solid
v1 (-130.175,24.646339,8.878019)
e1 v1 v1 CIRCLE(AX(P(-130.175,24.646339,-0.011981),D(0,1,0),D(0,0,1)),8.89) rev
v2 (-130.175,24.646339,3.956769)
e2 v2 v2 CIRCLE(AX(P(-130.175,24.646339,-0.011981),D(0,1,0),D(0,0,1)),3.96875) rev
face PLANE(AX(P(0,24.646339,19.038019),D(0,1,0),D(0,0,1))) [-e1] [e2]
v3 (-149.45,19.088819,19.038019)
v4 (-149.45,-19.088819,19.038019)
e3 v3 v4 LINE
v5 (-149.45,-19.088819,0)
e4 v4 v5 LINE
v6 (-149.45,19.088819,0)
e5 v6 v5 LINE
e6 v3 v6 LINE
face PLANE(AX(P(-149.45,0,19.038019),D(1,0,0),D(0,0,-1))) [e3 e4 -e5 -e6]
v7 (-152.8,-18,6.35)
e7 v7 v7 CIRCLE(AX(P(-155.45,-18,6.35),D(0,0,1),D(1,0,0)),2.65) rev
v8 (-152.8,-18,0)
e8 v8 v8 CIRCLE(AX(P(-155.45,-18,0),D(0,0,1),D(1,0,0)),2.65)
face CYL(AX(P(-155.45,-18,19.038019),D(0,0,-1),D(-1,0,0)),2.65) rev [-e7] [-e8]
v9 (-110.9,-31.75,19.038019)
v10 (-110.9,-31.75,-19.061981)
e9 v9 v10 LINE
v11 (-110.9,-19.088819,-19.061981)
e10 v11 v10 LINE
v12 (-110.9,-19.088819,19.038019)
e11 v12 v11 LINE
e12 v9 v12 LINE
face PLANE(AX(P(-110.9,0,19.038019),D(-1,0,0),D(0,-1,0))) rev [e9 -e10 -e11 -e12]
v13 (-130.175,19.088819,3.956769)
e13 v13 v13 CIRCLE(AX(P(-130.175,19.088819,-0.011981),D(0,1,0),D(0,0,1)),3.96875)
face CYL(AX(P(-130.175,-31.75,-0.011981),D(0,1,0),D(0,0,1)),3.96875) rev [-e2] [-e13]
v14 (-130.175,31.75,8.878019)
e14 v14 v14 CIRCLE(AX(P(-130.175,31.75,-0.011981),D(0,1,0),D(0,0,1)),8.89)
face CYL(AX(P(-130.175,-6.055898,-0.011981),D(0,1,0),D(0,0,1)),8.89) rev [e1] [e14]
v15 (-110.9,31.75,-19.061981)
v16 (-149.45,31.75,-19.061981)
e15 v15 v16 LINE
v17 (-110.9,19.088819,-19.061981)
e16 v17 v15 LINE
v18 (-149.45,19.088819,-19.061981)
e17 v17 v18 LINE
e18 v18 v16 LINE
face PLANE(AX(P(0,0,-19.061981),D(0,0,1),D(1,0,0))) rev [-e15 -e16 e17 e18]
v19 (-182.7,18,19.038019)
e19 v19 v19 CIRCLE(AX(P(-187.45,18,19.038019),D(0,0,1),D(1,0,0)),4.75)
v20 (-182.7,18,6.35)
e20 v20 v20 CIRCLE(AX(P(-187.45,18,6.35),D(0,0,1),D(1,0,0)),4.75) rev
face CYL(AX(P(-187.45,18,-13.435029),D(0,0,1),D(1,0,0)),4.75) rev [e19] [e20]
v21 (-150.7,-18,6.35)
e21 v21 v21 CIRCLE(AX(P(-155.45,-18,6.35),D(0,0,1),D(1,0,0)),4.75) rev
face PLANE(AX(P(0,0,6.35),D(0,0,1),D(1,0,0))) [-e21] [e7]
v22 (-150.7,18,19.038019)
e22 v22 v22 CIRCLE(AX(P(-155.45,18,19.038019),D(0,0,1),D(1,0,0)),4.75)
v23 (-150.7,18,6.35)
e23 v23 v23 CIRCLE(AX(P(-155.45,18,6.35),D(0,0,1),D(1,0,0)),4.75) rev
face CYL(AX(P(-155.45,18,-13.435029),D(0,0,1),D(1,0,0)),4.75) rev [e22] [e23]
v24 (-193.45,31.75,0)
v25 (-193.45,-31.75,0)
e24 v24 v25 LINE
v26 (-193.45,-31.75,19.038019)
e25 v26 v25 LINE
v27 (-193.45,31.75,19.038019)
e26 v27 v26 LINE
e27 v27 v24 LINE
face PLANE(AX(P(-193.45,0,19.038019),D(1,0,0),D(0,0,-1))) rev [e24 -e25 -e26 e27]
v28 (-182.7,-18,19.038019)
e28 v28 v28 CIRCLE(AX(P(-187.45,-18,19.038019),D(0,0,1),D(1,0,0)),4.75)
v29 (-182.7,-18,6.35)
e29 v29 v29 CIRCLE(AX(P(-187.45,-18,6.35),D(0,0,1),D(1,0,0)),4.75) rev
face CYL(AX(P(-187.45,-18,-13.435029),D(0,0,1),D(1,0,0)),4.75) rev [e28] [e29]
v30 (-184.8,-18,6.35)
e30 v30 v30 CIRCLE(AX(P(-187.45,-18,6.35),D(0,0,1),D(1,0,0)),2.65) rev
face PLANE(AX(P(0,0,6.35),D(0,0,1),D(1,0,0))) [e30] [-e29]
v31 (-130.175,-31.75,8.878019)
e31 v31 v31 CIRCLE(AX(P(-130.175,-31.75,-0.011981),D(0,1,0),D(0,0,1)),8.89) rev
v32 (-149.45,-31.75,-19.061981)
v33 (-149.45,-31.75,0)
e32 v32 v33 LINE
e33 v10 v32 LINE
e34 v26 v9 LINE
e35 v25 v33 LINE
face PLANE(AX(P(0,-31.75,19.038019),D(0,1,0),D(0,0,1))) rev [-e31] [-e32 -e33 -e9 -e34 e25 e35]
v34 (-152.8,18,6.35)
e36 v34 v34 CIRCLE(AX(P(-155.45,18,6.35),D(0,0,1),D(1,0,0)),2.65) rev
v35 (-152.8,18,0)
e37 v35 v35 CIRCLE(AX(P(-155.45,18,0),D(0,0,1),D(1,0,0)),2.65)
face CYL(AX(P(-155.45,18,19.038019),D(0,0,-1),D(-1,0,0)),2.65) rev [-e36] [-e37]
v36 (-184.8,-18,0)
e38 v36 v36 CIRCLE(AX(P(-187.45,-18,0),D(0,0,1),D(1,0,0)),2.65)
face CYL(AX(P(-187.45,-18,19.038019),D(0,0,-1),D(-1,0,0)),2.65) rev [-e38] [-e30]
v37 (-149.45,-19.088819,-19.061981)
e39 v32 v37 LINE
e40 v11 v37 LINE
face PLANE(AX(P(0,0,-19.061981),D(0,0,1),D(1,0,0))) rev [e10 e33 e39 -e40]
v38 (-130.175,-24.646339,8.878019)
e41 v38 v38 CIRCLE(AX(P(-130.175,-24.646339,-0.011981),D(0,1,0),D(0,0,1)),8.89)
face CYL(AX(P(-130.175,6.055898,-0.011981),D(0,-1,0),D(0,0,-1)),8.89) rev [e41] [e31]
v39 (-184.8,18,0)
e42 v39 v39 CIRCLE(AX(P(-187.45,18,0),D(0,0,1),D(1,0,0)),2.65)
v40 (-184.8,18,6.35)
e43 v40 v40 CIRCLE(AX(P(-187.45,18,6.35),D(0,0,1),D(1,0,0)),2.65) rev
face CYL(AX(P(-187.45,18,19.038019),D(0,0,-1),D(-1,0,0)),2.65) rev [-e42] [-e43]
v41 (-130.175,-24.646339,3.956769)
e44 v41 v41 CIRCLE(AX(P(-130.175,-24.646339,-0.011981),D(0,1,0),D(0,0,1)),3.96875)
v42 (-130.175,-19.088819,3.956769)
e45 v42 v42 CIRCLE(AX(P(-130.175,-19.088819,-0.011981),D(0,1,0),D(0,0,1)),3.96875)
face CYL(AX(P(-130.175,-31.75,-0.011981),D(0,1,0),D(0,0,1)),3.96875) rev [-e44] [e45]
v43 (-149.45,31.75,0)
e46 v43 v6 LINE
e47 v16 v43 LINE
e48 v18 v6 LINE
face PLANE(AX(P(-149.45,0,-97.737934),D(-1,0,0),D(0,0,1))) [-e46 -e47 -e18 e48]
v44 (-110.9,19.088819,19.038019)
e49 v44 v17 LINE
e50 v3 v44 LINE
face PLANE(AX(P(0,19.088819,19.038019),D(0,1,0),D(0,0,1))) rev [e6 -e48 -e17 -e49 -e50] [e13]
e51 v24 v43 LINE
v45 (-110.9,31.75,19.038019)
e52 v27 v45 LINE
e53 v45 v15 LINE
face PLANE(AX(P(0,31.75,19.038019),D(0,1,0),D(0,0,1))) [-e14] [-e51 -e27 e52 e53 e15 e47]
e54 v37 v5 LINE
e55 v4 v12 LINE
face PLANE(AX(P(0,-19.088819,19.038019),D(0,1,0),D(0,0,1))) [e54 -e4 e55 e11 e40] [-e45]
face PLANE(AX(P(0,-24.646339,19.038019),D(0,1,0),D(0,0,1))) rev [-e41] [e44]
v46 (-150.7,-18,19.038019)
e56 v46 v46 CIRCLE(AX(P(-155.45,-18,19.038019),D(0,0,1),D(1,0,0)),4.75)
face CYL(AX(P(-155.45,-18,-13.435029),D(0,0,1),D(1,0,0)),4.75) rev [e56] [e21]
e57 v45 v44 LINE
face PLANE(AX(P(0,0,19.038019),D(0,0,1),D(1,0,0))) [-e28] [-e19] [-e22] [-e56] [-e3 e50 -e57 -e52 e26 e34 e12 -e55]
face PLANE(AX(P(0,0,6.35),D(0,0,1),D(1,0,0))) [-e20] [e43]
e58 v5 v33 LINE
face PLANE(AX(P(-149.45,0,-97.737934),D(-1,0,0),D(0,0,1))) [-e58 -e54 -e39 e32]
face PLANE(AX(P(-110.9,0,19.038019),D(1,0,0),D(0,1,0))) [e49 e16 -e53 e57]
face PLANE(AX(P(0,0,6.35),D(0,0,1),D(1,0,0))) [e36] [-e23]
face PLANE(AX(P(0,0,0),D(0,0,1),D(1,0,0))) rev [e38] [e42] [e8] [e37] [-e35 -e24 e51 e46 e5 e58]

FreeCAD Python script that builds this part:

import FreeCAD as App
import Part
import Sketcher
from FreeCAD import Vector


def add_polygon(sketch, points):
    """Adds a closed chain of lines whose ends are joined by coincident constraints."""
    first, n = sketch.GeometryCount, len(points)
    for a, b in zip(points, points[1:] + points[:1]):
        sketch.addGeometry(Part.LineSegment(App.Vector(*a, 0), App.Vector(*b, 0)), False)
    for i in range(n):
        sketch.addConstraint(Sketcher.Constraint("Coincident", first + i, 2, first + (i + 1) % n, 1))

doc = App.newDocument("Part")
body = doc.addObject("PartDesign::Body", "Body")

# Sketch on XY plane
sketch1 = body.newObject("Sketcher::SketchObject", "Sketch")
sketch1.AttachmentSupport = (doc.getObject("XY_Plane"), [""])
sketch1.MapMode = "FlatFace"
add_polygon(sketch1, [(-193.45, 31.75), (-193.45, -31.75), (-149.45, -31.75), (-110.9, -31.75), (-110.9, -19.088819), (-149.45, -19.088819), (-149.45, 19.088819), (-110.9, 19.088819), (-110.9, 31.75), (-149.45, 31.75)])  # lines 0-9
sketch1.addConstraint([
    Sketcher.Constraint("Vertical", 0),
    Sketcher.Constraint("Horizontal", 1),
    Sketcher.Constraint("Horizontal", 2),
    Sketcher.Constraint("Vertical", 3),
    Sketcher.Constraint("Horizontal", 4),
    Sketcher.Constraint("Vertical", 5),
    Sketcher.Constraint("Horizontal", 6),
    Sketcher.Constraint("Vertical", 7),
    Sketcher.Constraint("Horizontal", 8),
    Sketcher.Constraint("Horizontal", 9),
    Sketcher.Constraint("Symmetric", 3, 2, 6, 2, -1),
    Sketcher.Constraint("Symmetric", 1, 2, 8, 2, -1),
    Sketcher.Constraint("Vertical", 1, 2, 4, 2),
    Sketcher.Constraint("DistanceX", 1, 1, 1, 2, 44.0),
    Sketcher.Constraint("DistanceY", 0, 2, 0, 1, 63.5),
    Sketcher.Constraint("DistanceX", 2, 1, 2, 2, 38.55),
    Sketcher.Constraint("DistanceX", 2, 2, -1, 1, 110.9),
    Sketcher.Constraint("DistanceY", 3, 1, 3, 2, 12.661181),
])
pad1 = body.newObject("PartDesign::Pad", "Pad")
pad1.Profile = sketch1
pad1.Length = 19.038019

# Sketch on XY plane
sketch2 = body.newObject("Sketcher::SketchObject", "Sketch001")
sketch2.AttachmentSupport = (doc.getObject("XY_Plane"), [""])
sketch2.MapMode = "FlatFace"
add_polygon(sketch2, [(-149.45, 31.75), (-149.45, 19.088819), (-110.9, 19.088819), (-110.9, 31.75)])  # lines 0-3
add_polygon(sketch2, [(-149.45, -19.088819), (-149.45, -31.75), (-110.9, -31.75), (-110.9, -19.088819)])  # lines 4-7
sketch2.addConstraint([
    Sketcher.Constraint("Vertical", 0),
    Sketcher.Constraint("Horizontal", 1),
    Sketcher.Constraint("Vertical", 2),
    Sketcher.Constraint("Horizontal", 3),
    Sketcher.Constraint("Vertical", 4),
    Sketcher.Constraint("Horizontal", 5),
    Sketcher.Constraint("Vertical", 6),
    Sketcher.Constraint("Horizontal", 7),
    Sketcher.Constraint("Symmetric", 3, 2, 4, 2, -1),
    Sketcher.Constraint("Symmetric", 1, 2, 6, 2, -1),
    Sketcher.Constraint("DistanceX", 1, 1, 1, 2, 38.55),
    Sketcher.Constraint("DistanceX", 1, 2, -1, 1, 110.9),
    Sketcher.Constraint("DistanceY", 4, 2, 3, 2, 63.5),
    Sketcher.Constraint("DistanceY", 0, 2, 0, 1, 12.661181),
])
pad2 = body.newObject("PartDesign::Pad", "Pad001")
pad2.Profile = sketch2
pad2.Length = 19.061981
pad2.Reversed = True

# Sketch on XZ plane
sketch3 = body.newObject("Sketcher::SketchObject", "Sketch002")
sketch3.AttachmentSupport = (doc.getObject("XZ_Plane"), [""])
sketch3.MapMode = "FlatFace"
sketch3.addGeometry(Part.Circle(Vector(-130.175, -0.011981, 0), Vector(0, 0, 1), 3.96875), False)
sketch3.addConstraint([
    Sketcher.Constraint("Diameter", 0, 7.9375),
    Sketcher.Constraint("DistanceX", 0, 3, -1, 1, 130.175),
    Sketcher.Constraint("DistanceY", 0, 3, -1, 1, 0.011981),
])
pocket1 = body.newObject("PartDesign::Pocket", "Pocket")
pocket1.Profile = sketch3
pocket1.Type = "ThroughAll"
pocket1.Midplane = True

# Sketch on XZ plane
sketch4 = body.newObject("Sketcher::SketchObject", "Sketch003")
sketch4.AttachmentSupport = (doc.getObject("XZ_Plane"), [""])
sketch4.MapMode = "FlatFace"
sketch4.AttachmentOffset = App.Placement(Vector(0, 0, 31.75), App.Rotation())
sketch4.addGeometry([
    Part.Circle(Vector(-130.175, -0.011981, 0), Vector(0, 0, 1), 8.89),
    Part.Circle(Vector(-130.175, -0.011981, 0), Vector(0, 0, 1), 3.96875),
], False)
sketch4.addConstraint([
    Sketcher.Constraint("Coincident", 1, 3, 0, 3),
    Sketcher.Constraint("Diameter", 0, 17.78),
    Sketcher.Constraint("Diameter", 1, 7.9375),
    Sketcher.Constraint("DistanceX", 0, 3, -1, 1, 130.175),
    Sketcher.Constraint("DistanceY", 0, 3, -1, 1, 0.011981),
])
pocket2 = body.newObject("PartDesign::Pocket", "Pocket001")
pocket2.Profile = sketch4
pocket2.Length = 7.103661

# Sketch on XZ plane
sketch5 = body.newObject("Sketcher::SketchObject", "Sketch004")
sketch5.AttachmentSupport = (doc.getObject("XZ_Plane"), [""])
sketch5.MapMode = "FlatFace"
sketch5.AttachmentOffset = App.Placement(Vector(0, 0, -24.646339), App.Rotation())
sketch5.addGeometry([
    Part.Circle(Vector(-130.175, -0.011981, 0), Vector(0, 0, 1), 8.89),
    Part.Circle(Vector(-130.175, -0.011981, 0), Vector(0, 0, 1), 3.96875),
], False)
sketch5.addConstraint([
    Sketcher.Constraint("Coincident", 1, 3, 0, 3),
    Sketcher.Constraint("Diameter", 0, 17.78),
    Sketcher.Constraint("Diameter", 1, 7.9375),
    Sketcher.Constraint("DistanceX", 0, 3, -1, 1, 130.175),
    Sketcher.Constraint("DistanceY", 0, 3, -1, 1, 0.011981),
])
pocket3 = body.newObject("PartDesign::Pocket", "Pocket002")
pocket3.Profile = sketch5
pocket3.Length = 7.103661

# Sketch on XY plane
sketch6 = body.newObject("Sketcher::SketchObject", "Sketch005")
sketch6.AttachmentSupport = (doc.getObject("XY_Plane"), [""])
sketch6.MapMode = "FlatFace"
sketch6.addGeometry([
    Part.Circle(Vector(-187.45, 18, 0), Vector(0, 0, 1), 2.65),
    Part.Circle(Vector(-155.45, 18, 0), Vector(0, 0, 1), 2.65),
    Part.Circle(Vector(-155.45, -18, 0), Vector(0, 0, 1), 2.65),
    Part.Circle(Vector(-187.45, -18, 0), Vector(0, 0, 1), 2.65),
], False)
sketch6.addConstraint([
    Sketcher.Constraint("Equal", 0, 1),
    Sketcher.Constraint("Equal", 1, 2),
    Sketcher.Constraint("Equal", 2, 3),
    Sketcher.Constraint("Symmetric", 1, 3, 2, 3, -1),
    Sketcher.Constraint("Symmetric", 0, 3, 3, 3, -1),
    Sketcher.Constraint("Horizontal", 0, 3, 1, 3),
    Sketcher.Constraint("Diameter", 0, 5.3),
    Sketcher.Constraint("DistanceY", -1, 1, 0, 3, 18.0),
    Sketcher.Constraint("DistanceX", 0, 3, 1, 3, 32.0),
    Sketcher.Constraint("DistanceX", 0, 3, -1, 1, 187.45),
])
pocket4 = body.newObject("PartDesign::Pocket", "Pocket003")
pocket4.Profile = sketch6
pocket4.Type = "ThroughAll"
pocket4.Reversed = True

# Sketch on XY plane
sketch7 = body.newObject("Sketcher::SketchObject", "Sketch006")
sketch7.AttachmentSupport = (doc.getObject("XY_Plane"), [""])
sketch7.MapMode = "FlatFace"
sketch7.AttachmentOffset = App.Placement(Vector(0, 0, 6.35), App.Rotation())
sketch7.addGeometry([
    Part.Circle(Vector(-187.45, 18, 0), Vector(0, 0, 1), 4.75),  # 0
    Part.Circle(Vector(-187.45, 18, 0), Vector(0, 0, 1), 2.65),  # 1
    Part.Circle(Vector(-187.45, 18, 0), Vector(0, 0, 1), 2.5),  # 2
    Part.Circle(Vector(-155.45, 18, 0), Vector(0, 0, 1), 4.75),  # 3
    Part.Circle(Vector(-155.45, 18, 0), Vector(0, 0, 1), 2.65),  # 4
    Part.Circle(Vector(-155.45, 18, 0), Vector(0, 0, 1), 2.5),  # 5
    Part.Circle(Vector(-155.45, -18, 0), Vector(0, 0, 1), 4.75),  # 6
    Part.Circle(Vector(-155.45, -18, 0), Vector(0, 0, 1), 2.65),  # 7
    Part.Circle(Vector(-155.45, -18, 0), Vector(0, 0, 1), 2.5),  # 8
    Part.Circle(Vector(-187.45, -18, 0), Vector(0, 0, 1), 4.75),  # 9
    Part.Circle(Vector(-187.45, -18, 0), Vector(0, 0, 1), 2.65),  # 10
    Part.Circle(Vector(-187.45, -18, 0), Vector(0, 0, 1), 2.5),  # 11
], False)
sketch7.addConstraint([
    Sketcher.Constraint("Coincident", 1, 3, 0, 3),
    Sketcher.Constraint("Coincident", 2, 3, 0, 3),
    Sketcher.Constraint("Coincident", 4, 3, 3, 3),
    Sketcher.Constraint("Coincident", 5, 3, 3, 3),
    Sketcher.Constraint("Coincident", 7, 3, 6, 3),
    Sketcher.Constraint("Coincident", 8, 3, 6, 3),
    Sketcher.Constraint("Coincident", 10, 3, 9, 3),
    Sketcher.Constraint("Coincident", 11, 3, 9, 3),
    Sketcher.Constraint("Equal", 0, 3),
    Sketcher.Constraint("Equal", 1, 4),
    Sketcher.Constraint("Equal", 2, 5),
    Sketcher.Constraint("Equal", 3, 6),
    Sketcher.Constraint("Equal", 4, 7),
    Sketcher.Constraint("Equal", 5, 8),
    Sketcher.Constraint("Equal", 6, 9),
    Sketcher.Constraint("Equal", 7, 10),
    Sketcher.Constraint("Equal", 8, 11),
    Sketcher.Constraint("Symmetric", 3, 3, 6, 3, -1),
    Sketcher.Constraint("Symmetric", 0, 3, 9, 3, -1),
    Sketcher.Constraint("Horizontal", 2, 3, 3, 3),
    Sketcher.Constraint("Diameter", 2, 5.0),
    Sketcher.Constraint("Diameter", 0, 9.5),
    Sketcher.Constraint("Diameter", 1, 5.3),
    Sketcher.Constraint("DistanceY", -1, 1, 0, 3, 18.0),
    Sketcher.Constraint("DistanceX", 0, 3, 3, 3, 32.0),
    Sketcher.Constraint("DistanceX", 0, 3, -1, 1, 187.45),
])
pocket5 = body.newObject("PartDesign::Pocket", "Pocket004")
pocket5.Profile = sketch7
pocket5.Length = 12.688019
pocket5.Reversed = True

doc.recompute()
